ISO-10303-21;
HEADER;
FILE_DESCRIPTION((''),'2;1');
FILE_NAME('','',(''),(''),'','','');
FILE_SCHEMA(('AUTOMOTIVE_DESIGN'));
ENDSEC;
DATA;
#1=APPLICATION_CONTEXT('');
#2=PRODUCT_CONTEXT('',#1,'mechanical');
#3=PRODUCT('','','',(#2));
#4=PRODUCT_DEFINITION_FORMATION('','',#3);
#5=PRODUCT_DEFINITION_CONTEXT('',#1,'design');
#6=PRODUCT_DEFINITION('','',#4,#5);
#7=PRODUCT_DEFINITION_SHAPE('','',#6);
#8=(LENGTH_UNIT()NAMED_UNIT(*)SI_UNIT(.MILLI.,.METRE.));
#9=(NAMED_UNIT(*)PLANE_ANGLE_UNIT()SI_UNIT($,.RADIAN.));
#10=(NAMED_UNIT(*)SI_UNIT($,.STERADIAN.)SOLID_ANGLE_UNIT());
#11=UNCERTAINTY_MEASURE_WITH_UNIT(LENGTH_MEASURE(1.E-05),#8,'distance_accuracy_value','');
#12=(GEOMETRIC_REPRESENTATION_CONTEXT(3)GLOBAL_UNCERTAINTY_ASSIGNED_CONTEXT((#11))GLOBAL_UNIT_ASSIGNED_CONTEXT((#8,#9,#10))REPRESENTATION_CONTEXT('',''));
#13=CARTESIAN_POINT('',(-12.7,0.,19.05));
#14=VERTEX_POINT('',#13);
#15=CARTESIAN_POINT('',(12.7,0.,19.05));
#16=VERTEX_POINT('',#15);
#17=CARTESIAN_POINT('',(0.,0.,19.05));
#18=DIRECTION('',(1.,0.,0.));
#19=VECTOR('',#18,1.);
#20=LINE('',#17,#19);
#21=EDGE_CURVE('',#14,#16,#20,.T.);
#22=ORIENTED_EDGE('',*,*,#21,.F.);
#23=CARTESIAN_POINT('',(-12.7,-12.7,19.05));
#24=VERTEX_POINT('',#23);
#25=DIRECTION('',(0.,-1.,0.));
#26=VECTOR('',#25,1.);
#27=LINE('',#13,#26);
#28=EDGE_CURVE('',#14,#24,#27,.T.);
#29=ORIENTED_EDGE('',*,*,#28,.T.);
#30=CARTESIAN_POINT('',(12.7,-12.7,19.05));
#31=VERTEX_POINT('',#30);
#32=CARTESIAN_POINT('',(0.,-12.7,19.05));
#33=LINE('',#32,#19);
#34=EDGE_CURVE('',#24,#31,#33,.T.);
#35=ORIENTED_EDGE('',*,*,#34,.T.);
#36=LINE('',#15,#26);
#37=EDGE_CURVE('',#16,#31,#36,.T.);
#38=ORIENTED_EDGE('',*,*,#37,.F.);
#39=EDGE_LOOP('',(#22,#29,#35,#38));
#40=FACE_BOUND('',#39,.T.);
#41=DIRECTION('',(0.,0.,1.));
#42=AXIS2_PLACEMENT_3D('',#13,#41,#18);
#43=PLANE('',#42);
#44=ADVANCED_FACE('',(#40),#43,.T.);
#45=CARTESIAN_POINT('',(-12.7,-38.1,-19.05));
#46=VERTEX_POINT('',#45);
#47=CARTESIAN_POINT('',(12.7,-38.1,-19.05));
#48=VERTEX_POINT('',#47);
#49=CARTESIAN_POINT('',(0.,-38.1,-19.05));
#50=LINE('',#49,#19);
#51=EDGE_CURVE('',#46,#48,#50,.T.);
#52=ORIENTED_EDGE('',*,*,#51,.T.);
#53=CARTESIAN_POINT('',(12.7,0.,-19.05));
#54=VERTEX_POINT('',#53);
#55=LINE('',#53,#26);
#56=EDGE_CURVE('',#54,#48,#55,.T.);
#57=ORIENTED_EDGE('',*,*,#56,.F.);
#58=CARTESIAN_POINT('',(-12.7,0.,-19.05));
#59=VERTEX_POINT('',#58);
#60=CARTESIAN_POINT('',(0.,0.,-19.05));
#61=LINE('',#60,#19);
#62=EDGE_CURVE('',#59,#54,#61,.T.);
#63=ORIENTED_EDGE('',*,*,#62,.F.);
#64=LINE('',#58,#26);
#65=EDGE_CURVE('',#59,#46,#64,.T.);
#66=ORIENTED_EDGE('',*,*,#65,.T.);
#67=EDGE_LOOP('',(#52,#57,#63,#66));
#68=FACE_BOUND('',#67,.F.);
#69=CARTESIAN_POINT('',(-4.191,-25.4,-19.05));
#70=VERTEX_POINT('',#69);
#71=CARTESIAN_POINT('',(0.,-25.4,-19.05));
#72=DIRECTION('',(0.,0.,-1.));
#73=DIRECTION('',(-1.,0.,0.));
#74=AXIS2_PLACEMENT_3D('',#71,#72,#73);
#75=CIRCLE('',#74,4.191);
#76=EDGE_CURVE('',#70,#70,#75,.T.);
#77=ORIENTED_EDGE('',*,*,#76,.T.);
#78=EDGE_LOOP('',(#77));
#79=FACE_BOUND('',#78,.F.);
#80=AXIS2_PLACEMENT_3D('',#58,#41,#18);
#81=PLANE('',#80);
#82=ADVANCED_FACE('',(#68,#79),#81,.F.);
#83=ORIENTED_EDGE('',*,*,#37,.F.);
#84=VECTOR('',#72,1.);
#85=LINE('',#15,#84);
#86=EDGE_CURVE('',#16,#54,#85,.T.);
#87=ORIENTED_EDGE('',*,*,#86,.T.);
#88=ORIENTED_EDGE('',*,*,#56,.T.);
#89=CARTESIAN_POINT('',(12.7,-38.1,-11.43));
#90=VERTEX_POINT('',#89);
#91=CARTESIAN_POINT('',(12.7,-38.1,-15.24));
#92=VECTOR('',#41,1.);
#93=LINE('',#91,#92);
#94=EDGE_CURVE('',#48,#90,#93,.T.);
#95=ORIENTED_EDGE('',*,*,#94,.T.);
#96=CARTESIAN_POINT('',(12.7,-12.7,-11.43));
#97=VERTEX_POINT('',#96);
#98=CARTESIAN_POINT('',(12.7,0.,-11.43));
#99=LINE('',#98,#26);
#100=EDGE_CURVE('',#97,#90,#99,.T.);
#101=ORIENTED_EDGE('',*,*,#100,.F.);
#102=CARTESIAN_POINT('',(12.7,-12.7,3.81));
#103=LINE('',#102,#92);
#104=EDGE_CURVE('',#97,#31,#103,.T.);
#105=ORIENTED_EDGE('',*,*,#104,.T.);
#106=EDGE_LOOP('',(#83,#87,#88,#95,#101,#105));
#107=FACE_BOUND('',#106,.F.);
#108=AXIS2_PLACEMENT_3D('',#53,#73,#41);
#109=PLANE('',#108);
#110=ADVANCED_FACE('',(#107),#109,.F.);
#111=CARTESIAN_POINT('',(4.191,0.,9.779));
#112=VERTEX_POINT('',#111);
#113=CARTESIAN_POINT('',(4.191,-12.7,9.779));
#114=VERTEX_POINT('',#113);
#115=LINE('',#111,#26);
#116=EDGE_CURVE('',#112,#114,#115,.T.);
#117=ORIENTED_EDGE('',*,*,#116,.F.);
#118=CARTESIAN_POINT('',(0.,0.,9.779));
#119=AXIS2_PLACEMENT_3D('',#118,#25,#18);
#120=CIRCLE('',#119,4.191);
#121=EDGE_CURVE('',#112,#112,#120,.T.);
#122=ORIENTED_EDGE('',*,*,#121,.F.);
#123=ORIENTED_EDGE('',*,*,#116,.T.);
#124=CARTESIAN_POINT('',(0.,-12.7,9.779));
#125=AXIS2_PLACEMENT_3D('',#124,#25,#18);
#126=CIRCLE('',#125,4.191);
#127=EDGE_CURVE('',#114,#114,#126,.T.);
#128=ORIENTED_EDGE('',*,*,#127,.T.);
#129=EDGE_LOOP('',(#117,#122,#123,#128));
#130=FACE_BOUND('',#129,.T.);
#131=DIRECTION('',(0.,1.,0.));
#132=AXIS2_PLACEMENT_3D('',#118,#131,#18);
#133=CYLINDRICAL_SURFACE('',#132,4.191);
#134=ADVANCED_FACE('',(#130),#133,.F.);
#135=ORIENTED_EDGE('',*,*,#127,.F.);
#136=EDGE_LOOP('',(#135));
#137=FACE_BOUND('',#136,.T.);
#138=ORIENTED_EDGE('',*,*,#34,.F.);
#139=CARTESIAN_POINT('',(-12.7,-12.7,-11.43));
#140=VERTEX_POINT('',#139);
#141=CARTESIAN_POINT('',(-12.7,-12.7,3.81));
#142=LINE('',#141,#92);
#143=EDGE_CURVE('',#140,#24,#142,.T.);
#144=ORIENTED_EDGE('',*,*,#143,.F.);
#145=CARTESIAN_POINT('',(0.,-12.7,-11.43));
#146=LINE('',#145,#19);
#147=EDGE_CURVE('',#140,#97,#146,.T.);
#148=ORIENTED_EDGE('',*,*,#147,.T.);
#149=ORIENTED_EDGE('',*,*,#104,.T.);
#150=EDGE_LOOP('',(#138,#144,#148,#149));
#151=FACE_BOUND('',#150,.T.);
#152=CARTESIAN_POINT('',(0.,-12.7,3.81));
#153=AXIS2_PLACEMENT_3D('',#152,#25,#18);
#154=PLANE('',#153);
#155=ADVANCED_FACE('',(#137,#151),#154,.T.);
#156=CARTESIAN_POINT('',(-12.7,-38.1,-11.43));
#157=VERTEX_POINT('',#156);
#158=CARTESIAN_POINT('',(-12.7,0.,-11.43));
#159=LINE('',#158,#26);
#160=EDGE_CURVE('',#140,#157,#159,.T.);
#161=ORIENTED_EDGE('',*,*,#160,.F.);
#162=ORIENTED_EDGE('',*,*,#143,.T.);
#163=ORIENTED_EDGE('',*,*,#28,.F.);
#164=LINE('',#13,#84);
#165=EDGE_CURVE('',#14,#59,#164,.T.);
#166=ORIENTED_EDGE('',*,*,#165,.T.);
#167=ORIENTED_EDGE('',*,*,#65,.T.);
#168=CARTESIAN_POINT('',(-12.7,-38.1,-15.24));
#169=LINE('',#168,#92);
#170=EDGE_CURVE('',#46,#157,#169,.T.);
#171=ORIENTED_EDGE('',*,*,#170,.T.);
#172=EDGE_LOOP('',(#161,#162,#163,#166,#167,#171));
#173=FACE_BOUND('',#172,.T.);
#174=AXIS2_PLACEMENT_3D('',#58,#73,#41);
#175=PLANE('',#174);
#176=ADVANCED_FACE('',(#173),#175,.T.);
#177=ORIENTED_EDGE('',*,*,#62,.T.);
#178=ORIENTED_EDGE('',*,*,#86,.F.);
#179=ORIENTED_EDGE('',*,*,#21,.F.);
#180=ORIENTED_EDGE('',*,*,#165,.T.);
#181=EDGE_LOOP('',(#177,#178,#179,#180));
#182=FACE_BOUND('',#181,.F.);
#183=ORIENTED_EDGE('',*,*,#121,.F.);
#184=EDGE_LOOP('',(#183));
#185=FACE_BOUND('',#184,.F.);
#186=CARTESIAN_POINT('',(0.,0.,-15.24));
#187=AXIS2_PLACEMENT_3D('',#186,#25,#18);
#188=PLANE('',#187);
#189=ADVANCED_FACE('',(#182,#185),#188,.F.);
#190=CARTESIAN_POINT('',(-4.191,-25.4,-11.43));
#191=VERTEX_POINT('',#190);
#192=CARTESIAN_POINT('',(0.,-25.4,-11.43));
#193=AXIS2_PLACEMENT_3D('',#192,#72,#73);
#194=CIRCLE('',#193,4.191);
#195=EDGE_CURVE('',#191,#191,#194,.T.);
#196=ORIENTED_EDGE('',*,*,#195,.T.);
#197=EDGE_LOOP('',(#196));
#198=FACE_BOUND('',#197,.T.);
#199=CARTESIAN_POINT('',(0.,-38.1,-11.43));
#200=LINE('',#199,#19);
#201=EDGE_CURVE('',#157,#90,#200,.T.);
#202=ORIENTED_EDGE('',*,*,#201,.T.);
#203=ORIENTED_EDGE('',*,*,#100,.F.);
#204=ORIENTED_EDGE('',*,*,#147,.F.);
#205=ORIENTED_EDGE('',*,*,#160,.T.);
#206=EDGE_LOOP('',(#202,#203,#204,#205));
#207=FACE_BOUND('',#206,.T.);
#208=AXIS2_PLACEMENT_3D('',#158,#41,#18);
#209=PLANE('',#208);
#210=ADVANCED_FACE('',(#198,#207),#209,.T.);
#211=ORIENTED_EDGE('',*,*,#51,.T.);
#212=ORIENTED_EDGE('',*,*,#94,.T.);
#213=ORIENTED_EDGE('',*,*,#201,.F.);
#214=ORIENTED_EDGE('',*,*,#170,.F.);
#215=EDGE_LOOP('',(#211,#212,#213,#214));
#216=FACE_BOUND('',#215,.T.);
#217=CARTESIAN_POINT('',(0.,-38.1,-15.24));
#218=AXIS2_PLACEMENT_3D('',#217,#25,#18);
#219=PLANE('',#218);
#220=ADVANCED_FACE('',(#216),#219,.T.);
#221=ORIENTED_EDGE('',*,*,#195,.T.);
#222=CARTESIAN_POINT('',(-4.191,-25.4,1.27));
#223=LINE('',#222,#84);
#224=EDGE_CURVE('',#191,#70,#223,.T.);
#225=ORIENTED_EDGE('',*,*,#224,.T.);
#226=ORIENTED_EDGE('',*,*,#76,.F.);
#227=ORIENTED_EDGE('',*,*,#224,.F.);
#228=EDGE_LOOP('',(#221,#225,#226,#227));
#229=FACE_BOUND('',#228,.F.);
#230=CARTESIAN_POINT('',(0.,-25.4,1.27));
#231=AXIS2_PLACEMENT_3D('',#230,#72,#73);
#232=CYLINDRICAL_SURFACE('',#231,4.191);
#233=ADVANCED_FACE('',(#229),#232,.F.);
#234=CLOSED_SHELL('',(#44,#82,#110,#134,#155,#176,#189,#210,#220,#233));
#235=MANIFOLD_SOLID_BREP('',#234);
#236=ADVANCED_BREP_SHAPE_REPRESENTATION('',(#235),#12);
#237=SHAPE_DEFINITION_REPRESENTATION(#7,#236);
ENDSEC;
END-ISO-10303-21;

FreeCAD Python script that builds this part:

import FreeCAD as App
import Part
import Sketcher

V = App.Vector
Q = App.Units.Quantity


def add_polygon(sketch, points):
    """Adds a closed chain of lines whose ends are joined by coincident constraints."""
    first, n = sketch.GeometryCount, len(points)
    for a, b in zip(points, points[1:] + points[:1]):
        sketch.addGeometry(Part.LineSegment(App.Vector(*a, 0), App.Vector(*b, 0)), False)
    for i in range(n):
        sketch.addConstraint(Sketcher.Constraint("Coincident", first + i, 2, first + (i + 1) % n, 1))

doc = App.newDocument("Part")
params = doc.addObject("Spreadsheet::Sheet", "Params")
for row, (alias, value) in enumerate([
    ("sketch1_diameter", "0.33 in"),
    ("sketch1_width", "1 in"),
    ("sketch1_height", "1.2 in"),
    ("pad1_length", "0.5 in"),
    ("sketch2_width", "1 in"),
    ("sketch2_height", "0.3 in"),
    ("pad2_length", "1.5 in"),
    ("sketch3_diameter", "0.33 in"),
    ("hole_diameter", "0.33 in"),
    ("hole_depth", "0.5 in"),
], start=1):
    params.set(f"A{row}", alias)
    params.set(f"B{row}", "=" + value)
    params.setAlias(f"B{row}", alias)

body = doc.addObject("PartDesign::Body", "Body")

# Sketch on XZ plane
sketch1 = body.newObject("Sketcher::SketchObject", "Sketch")
sketch1.AttachmentSupport = (doc.getObject("XZ_Plane"), [""])
sketch1.MapMode = "FlatFace"
add_polygon(sketch1, [(-12.7, 19.1), (-12.7, -11.4), (12.7, -11.4), (12.7, 19.1)])  # lines 0-3
sketch1.addGeometry(Part.Circle(V(0, 9.8, 0), V(0, 0, 1), 4.2), False)  # 4
sketch1.addConstraint([
    Sketcher.Constraint("Vertical", 0),
    Sketcher.Constraint("Horizontal", 1),
    Sketcher.Constraint("Vertical", 2),
    Sketcher.Constraint("Horizontal", 3),
    Sketcher.Constraint("PointOnObject", 4, 3, -2),
    Sketcher.Constraint("Diameter", 4, Q("0.33 in")),
    Sketcher.Constraint("DistanceX", 1, 1, 1, 2, Q("1 in")),
    Sketcher.Constraint("DistanceY", 0, 2, 0, 1, Q("1.2 in")),
    Sketcher.Constraint("DistanceX", 0, 2, -1, 1, Q("0.5 in")),
    Sketcher.Constraint("DistanceY", 0, 2, -1, 1, Q("0.45 in")),
    Sketcher.Constraint("DistanceY", -1, 1, 4, 3, Q("0.385 in")),
])
sketch1.setExpression("Constraints[9]", "Params.sketch1_diameter")
sketch1.setExpression("Constraints[10]", "Params.sketch1_width")
sketch1.setExpression("Constraints[11]", "Params.sketch1_height")
pad1 = body.newObject("PartDesign::Pad", "Pad")
pad1.Profile = sketch1
pad1.setExpression("Length", "Params.pad1_length")

# Sketch on XZ plane
sketch2 = body.newObject("Sketcher::SketchObject", "Sketch001")
sketch2.AttachmentSupport = (doc.getObject("XZ_Plane"), [""])
sketch2.MapMode = "FlatFace"
add_polygon(sketch2, [(-13, -11), (-13, -19), (13, -19), (13, -11)])  # lines 0-3
sketch2.addConstraint([
    Sketcher.Constraint("Vertical", 0),
    Sketcher.Constraint("Horizontal", 1),
    Sketcher.Constraint("Vertical", 2),
    Sketcher.Constraint("Horizontal", 3),
    Sketcher.Constraint("DistanceX", 1, 1, 1, 2, Q("1 in")),
    Sketcher.Constraint("DistanceY", 0, 2, 0, 1, Q("0.3 in")),
    Sketcher.Constraint("DistanceX", 0, 2, -1, 1, Q("0.5 in")),
    Sketcher.Constraint("DistanceY", 0, 2, -1, 1, Q("0.75 in")),
])
sketch2.setExpression("Constraints[8]", "Params.sketch2_width")
sketch2.setExpression("Constraints[9]", "Params.sketch2_height")
pad2 = body.newObject("PartDesign::Pad", "Pad001")
pad2.Profile = sketch2
pad2.setExpression("Length", "Params.pad2_length")

# Sketch on XY plane
sketch3 = body.newObject("Sketcher::SketchObject", "Sketch002")
sketch3.AttachmentSupport = (doc.getObject("XY_Plane"), [""])
sketch3.MapMode = "FlatFace"
sketch3.AttachmentOffset = App.Placement(V(0, 0, -0.45 * 25.4), App.Rotation())
sketch3.addGeometry(Part.Circle(V(0, -25.4, 0), V(0, 0, 1), 4.2), False)
sketch3.addConstraint([
    Sketcher.Constraint("PointOnObject", 0, 3, -2),
    Sketcher.Constraint("Diameter", 0, Q("0.33 in")),
    Sketcher.Constraint("DistanceY", 0, 3, -1, 1, Q("1 in")),
])
sketch3.setExpression("Constraints[1]", "Params.sketch3_diameter")
doc.recompute()
hole = body.newObject("PartDesign::Hole", "Hole")
hole.Profile = sketch3
hole.ThreadType = "None"
hole.setExpression("Diameter", "Params.hole_diameter")
hole.DepthType = "Dimension"
hole.setExpression("Depth", "Params.hole_depth")
hole.DrillPoint = "Flat"

doc.recompute()
